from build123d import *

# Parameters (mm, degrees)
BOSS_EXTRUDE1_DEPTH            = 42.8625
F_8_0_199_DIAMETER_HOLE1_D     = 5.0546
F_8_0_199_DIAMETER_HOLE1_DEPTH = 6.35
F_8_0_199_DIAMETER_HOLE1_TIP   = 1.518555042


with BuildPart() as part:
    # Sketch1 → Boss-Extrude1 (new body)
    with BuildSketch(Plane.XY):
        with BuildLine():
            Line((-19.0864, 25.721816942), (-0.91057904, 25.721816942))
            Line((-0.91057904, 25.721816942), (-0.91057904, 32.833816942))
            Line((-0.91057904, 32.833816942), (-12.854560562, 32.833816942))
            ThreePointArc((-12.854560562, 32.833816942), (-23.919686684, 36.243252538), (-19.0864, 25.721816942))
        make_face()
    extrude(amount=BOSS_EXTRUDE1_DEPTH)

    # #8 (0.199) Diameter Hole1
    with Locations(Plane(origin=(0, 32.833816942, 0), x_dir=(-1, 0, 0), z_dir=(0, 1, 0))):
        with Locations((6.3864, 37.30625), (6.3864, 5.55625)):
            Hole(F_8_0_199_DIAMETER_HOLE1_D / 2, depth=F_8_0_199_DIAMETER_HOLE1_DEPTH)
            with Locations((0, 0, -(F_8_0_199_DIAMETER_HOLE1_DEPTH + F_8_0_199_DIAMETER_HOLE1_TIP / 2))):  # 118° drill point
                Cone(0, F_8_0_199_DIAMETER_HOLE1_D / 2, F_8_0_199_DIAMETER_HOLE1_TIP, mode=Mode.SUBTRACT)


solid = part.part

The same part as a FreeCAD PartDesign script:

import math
import FreeCAD as App
import Part
import Sketcher
Q = App.Units.Quantity

doc = App.newDocument("Part")
params = doc.addObject("Spreadsheet::Sheet", "Params")
for row, (alias, value) in enumerate([
    ("sketch1_height", "0.28 in"),
    ("pad1_length", "1.6875 in"),
    ("sketch2_diameter", "0.199 in"),
    ("hole_diameter", "0.199 in"),
    ("hole_depth", "0.25 in"),
], start=1):
    params.set(f"A{row}", alias)
    params.set(f"B{row}", "=" + value)
    params.setAlias(f"B{row}", alias)

body = doc.addObject("PartDesign::Body", "Body")

# Sketch on XY plane
sketch1 = body.newObject("Sketcher::SketchObject", "Sketch")
sketch1.AttachmentSupport = (doc.getObject("XY_Plane"), [""])
sketch1.MapMode = "FlatFace"
sketch1.addGeometry(Part.LineSegment(App.Vector(-19, 26, 0), App.Vector(-1, 26, 0)), False)
sketch1.addGeometry(Part.LineSegment(App.Vector(-1, 26, 0), App.Vector(-1, 33, 0)), False)
sketch1.addGeometry(Part.LineSegment(App.Vector(-1, 33, 0), App.Vector(-13, 33, 0)), False)
sketch1.addGeometry(Part.ArcOfCircle(Part.Circle(App.Vector(-19, 32, 0), App.Vector(0, 0, 1), 6), math.radians(7), math.radians(271)), False)
sketch1.addConstraint(Sketcher.Constraint("Coincident", 0, 2, 1, 1))
sketch1.addConstraint(Sketcher.Constraint("Coincident", 1, 2, 2, 1))
sketch1.addConstraint(Sketcher.Constraint("Coincident", 2, 2, 3, 1))
sketch1.addConstraint(Sketcher.Constraint("Coincident", 3, 2, 0, 1))
sketch1.addConstraint(Sketcher.Constraint("Horizontal", 0))
sketch1.addConstraint(Sketcher.Constraint("Vertical", 1))
sketch1.addConstraint(Sketcher.Constraint("Horizontal", 2))
sketch1.addConstraint(Sketcher.Constraint("DistanceY", 1, 1, 1, 2, Q("0.28 in")))
sketch1.addConstraint(Sketcher.Constraint("Radius", 3, 6.342096))
sketch1.addConstraint(Sketcher.Constraint("DistanceX", 0, 1, 0, 2, 18.175821))
sketch1.addConstraint(Sketcher.Constraint("DistanceX", 2, 2, 2, 1, 11.943982))
sketch1.addConstraint(Sketcher.Constraint("DistanceX", 3, 2, -1, 1, 19.0864))
sketch1.addConstraint(Sketcher.Constraint("DistanceY", -1, 1, 3, 3, 32.063597))
sketch1.setExpression("Constraints[7]", "Params.sketch1_height")
pad1 = body.newObject("PartDesign::Pad", "Pad")
pad1.Profile = sketch1
pad1.setExpression("Length", "Params.pad1_length")

# Sketch on XZ plane
sketch2 = body.newObject("Sketcher::SketchObject", "Sketch001")
sketch2.AttachmentSupport = (doc.getObject("XZ_Plane"), [""])
sketch2.MapMode = "FlatFace"
sketch2.AttachmentOffset = App.Placement(App.Vector(0, 0, -32.833817), App.Rotation())
sketch2.addGeometry(Part.Circle(App.Vector(-6.4, 37.3, 0), App.Vector(0, 0, 1), 2.5), False)
sketch2.addGeometry(Part.Circle(App.Vector(-6.4, 5.6, 0), App.Vector(0, 0, 1), 2.5), False)
sketch2.addConstraint(Sketcher.Constraint("Equal", 0, 1))
sketch2.addConstraint(Sketcher.Constraint("Vertical", 0, 3, 1, 3))
sketch2.addConstraint(Sketcher.Constraint("Diameter", 0, Q("0.199 in")))
sketch2.addConstraint(Sketcher.Constraint("DistanceY", 1, 3, 0, 3, Q("1.25 in")))
sketch2.addConstraint(Sketcher.Constraint("DistanceY", -1, 1, 0, 3, Q("1.46875 in")))
sketch2.addConstraint(Sketcher.Constraint("DistanceX", 0, 3, -1, 1, 6.3864))
sketch2.setExpression("Constraints[2]", "Params.sketch2_diameter")
doc.recompute()
hole = body.newObject("PartDesign::Hole", "Hole")
hole.Profile = sketch2
hole.ThreadType = "None"
hole.setExpression("Diameter", "Params.hole_diameter")
hole.DepthType = "Dimension"
hole.setExpression("Depth", "Params.hole_depth")
hole.DrillPoint = "Angled"
hole.DrillPointAngle = 118
hole.Reversed = True

doc.recompute()
